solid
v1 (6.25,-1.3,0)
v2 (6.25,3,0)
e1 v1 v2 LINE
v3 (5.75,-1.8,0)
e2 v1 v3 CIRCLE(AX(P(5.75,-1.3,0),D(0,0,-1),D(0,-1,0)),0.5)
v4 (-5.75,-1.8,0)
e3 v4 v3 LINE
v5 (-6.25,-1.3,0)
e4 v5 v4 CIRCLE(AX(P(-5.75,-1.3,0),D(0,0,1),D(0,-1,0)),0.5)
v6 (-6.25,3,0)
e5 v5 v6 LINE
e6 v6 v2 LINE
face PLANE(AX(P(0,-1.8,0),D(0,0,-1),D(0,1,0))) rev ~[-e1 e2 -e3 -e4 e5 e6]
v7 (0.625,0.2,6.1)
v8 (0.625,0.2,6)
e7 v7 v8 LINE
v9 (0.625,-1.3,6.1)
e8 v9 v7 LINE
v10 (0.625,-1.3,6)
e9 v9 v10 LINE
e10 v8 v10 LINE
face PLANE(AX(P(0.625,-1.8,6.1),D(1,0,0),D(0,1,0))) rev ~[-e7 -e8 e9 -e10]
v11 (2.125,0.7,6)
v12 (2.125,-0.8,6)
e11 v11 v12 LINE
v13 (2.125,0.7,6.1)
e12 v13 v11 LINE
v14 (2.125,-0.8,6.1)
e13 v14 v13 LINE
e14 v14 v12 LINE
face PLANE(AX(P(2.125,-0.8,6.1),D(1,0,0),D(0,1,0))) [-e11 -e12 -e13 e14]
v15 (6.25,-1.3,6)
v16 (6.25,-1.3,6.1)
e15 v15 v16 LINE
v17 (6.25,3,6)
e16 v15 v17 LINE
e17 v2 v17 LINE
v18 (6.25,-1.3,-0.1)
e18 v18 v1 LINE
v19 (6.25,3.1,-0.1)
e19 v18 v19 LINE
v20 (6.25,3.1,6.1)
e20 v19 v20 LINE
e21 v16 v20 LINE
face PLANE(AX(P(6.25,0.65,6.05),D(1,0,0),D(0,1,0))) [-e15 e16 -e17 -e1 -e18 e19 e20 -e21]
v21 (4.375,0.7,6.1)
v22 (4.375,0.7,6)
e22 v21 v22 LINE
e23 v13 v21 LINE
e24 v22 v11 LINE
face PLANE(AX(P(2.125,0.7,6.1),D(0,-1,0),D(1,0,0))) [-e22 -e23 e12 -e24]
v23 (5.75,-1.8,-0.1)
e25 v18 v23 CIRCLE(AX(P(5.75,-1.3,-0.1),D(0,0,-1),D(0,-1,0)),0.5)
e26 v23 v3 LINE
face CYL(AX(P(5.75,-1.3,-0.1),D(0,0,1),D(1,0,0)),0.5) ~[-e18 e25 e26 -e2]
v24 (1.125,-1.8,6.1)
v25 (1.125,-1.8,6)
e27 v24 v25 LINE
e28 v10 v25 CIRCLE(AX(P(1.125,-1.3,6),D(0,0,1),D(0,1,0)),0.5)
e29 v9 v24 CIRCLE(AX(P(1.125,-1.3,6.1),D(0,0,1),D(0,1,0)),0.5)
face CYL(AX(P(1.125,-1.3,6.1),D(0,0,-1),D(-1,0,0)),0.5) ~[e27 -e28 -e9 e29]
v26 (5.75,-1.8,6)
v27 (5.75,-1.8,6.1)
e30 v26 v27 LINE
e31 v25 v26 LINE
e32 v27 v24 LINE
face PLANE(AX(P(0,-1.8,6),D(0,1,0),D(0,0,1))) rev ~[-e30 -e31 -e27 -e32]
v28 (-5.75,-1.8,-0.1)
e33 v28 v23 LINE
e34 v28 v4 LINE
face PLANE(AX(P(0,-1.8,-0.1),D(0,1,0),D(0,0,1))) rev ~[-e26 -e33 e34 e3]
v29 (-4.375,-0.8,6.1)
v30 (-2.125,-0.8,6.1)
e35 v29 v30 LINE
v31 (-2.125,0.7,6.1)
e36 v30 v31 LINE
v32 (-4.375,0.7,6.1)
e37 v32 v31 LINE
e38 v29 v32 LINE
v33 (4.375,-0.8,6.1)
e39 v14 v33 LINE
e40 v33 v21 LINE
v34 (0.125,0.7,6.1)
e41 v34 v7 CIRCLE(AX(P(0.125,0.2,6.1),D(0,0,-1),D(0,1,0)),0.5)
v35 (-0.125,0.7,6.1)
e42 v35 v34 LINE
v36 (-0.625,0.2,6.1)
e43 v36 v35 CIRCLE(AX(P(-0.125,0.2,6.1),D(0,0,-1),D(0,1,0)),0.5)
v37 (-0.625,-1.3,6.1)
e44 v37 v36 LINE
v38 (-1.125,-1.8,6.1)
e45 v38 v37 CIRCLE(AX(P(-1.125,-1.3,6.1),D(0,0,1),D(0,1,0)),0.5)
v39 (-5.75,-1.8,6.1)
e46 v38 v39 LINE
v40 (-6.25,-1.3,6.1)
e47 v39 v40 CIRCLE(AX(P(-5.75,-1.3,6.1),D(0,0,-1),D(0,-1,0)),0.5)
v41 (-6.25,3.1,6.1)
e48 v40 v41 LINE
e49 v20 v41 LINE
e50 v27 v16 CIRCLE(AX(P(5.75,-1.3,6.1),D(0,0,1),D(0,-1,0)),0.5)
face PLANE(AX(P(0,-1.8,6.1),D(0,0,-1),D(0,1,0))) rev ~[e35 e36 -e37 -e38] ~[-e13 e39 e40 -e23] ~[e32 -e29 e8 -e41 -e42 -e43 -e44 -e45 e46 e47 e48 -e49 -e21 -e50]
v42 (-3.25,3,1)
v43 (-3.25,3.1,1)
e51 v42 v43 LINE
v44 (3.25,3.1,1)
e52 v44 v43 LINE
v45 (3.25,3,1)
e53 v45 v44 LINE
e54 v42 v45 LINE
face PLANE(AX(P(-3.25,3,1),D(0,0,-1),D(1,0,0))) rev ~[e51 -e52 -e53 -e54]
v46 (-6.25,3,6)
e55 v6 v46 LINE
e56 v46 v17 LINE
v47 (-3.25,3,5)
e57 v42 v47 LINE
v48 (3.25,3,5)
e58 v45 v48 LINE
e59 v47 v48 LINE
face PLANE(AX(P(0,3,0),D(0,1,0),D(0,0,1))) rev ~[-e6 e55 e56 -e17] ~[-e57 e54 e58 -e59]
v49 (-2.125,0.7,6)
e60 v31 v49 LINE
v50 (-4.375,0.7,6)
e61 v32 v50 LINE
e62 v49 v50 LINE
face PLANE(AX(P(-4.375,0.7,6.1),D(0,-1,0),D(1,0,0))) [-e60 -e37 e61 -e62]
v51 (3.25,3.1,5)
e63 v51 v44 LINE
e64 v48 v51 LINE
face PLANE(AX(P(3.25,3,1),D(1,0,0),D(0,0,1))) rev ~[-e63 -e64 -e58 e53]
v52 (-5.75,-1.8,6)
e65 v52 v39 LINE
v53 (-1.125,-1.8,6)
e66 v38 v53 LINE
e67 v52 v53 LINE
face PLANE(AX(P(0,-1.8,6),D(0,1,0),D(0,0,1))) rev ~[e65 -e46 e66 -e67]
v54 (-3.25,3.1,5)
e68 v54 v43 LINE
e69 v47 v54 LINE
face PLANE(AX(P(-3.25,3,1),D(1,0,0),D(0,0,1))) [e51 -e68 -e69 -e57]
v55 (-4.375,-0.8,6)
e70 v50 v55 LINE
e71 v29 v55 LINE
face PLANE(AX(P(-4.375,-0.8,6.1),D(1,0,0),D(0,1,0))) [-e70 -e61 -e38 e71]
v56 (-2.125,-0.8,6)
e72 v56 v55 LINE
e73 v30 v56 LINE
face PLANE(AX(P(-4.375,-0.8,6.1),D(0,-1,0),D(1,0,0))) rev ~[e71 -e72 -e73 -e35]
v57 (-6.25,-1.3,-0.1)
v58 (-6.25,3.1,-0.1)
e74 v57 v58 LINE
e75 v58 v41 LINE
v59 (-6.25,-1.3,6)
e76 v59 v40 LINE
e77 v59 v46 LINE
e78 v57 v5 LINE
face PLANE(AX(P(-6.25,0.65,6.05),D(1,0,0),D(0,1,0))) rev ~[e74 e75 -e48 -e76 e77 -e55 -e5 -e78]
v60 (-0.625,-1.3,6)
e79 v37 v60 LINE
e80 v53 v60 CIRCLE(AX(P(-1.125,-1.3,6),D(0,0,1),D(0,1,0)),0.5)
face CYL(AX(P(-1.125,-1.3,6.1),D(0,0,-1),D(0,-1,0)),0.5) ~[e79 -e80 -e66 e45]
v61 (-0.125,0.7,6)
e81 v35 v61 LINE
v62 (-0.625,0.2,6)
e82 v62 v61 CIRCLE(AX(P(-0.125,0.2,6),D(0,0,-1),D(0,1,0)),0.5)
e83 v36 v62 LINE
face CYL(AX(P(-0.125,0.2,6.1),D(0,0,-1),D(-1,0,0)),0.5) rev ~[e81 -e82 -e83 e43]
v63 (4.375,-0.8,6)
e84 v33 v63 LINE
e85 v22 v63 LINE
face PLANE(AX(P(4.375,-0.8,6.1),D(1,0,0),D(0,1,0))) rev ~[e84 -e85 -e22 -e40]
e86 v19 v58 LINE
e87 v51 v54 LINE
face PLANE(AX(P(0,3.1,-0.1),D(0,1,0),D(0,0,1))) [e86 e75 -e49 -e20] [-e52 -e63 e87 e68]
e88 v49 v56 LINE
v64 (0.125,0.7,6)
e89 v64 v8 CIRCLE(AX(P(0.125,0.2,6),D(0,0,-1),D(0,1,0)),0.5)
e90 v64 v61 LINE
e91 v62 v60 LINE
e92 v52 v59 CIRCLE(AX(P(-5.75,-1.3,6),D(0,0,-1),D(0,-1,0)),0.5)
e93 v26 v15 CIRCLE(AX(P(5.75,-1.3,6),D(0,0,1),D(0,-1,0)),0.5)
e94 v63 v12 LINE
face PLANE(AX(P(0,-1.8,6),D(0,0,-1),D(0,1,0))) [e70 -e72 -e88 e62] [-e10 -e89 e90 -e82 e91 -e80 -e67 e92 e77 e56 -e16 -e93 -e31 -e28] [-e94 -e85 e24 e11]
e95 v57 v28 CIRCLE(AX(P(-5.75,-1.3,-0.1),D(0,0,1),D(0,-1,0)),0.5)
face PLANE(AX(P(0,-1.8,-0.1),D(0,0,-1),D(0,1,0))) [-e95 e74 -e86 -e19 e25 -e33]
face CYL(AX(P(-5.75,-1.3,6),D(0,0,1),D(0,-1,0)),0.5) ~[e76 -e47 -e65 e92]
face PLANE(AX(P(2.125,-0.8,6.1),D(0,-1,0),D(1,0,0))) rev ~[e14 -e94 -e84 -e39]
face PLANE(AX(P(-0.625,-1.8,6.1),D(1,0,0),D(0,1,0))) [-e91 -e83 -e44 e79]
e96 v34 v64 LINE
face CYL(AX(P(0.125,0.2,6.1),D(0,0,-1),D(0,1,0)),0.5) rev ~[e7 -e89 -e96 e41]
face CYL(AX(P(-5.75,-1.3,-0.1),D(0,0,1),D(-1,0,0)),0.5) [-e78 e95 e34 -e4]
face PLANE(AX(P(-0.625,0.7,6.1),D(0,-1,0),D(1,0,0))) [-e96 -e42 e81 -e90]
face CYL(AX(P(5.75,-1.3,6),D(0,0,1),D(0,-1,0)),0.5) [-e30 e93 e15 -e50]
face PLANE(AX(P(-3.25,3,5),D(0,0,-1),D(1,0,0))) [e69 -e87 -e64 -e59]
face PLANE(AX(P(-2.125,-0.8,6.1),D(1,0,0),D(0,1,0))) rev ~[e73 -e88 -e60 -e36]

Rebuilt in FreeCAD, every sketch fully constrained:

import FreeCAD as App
import Part
import Sketcher
Q = App.Units.Quantity


def edges_at(feature, points):
    """Names of the edges that pass closest to the given points."""
    edges = feature.Shape.Edges
    near = lambda p: min(range(len(edges)), key=lambda i: edges[i].distToShape(Part.Vertex(*p))[0])
    return sorted({f"Edge{near(p) + 1}" for p in points})


def add_polygon(sketch, points):
    """Adds a closed chain of lines whose ends are joined by coincident constraints."""
    first, n = sketch.GeometryCount, len(points)
    for a, b in zip(points, points[1:] + points[:1]):
        sketch.addGeometry(Part.LineSegment(App.Vector(*a, 0), App.Vector(*b, 0)), False)
    for i in range(n):
        sketch.addConstraint(Sketcher.Constraint("Coincident", first + i, 2, first + (i + 1) % n, 1))

doc = App.newDocument("Part")
body = doc.addObject("PartDesign::Body", "Body")

sketch1 = body.newObject("Sketcher::SketchObject", "Sketch")
sketch1.AttachmentSupport = (doc.getObject("YZ_Plane"), [""])
sketch1.MapMode = "FlatFace"
add_polygon(sketch1, [(-1.8, 6.1), (-1.8, 6), (3, 6), (3, 0), (-1.8, 0), (-1.8, -0.1), (3.1, -0.1), (3.1, 6.1)])
sketch1.addConstraint([
    Sketcher.Constraint("Vertical", 0),
    Sketcher.Constraint("Horizontal", 1),
    Sketcher.Constraint("Vertical", 2),
    Sketcher.Constraint("Horizontal", 3),
    Sketcher.Constraint("Vertical", 4),
    Sketcher.Constraint("Horizontal", 5),
    Sketcher.Constraint("Vertical", 6),
    Sketcher.Constraint("Horizontal", 7),
    Sketcher.Constraint("PointOnObject", 2, 2, -1),
    Sketcher.Constraint("Vertical", 0, 2, 3, 2),
    Sketcher.Constraint("Equal", 0, 4),
    Sketcher.Constraint("DistanceY", 2, 2, 2, 1, Q("6 mm")),
    Sketcher.Constraint("DistanceX", 1, 1, 1, 2, Q("4.8 mm")),
    Sketcher.Constraint("DistanceX", 5, 1, 5, 2, Q("4.9 mm")),
    Sketcher.Constraint("DistanceY", 0, 2, 0, 1, Q("0.1 mm")),
    Sketcher.Constraint("DistanceX", -1, 1, 1, 2, Q("3 mm")),
])
pad1 = body.newObject("PartDesign::Pad", "Pad")
pad1.Profile = sketch1
pad1.Length = 12.5
pad1.Midplane = True

sketch2 = body.newObject("Sketcher::SketchObject", "Sketch001")
sketch2.AttachmentSupport = (doc.getObject("XY_Plane"), [""])
sketch2.MapMode = "FlatFace"
sketch2.AttachmentOffset = App.Placement(App.Vector(0, 0, 6.1), App.Rotation())
add_polygon(sketch2, [(-0.625, 0.7), (-0.625, -1.8), (0.625, -1.8), (0.625, 0.7)])
add_polygon(sketch2, [(2.125, 0.7), (2.125, -0.8), (4.375, -0.8), (4.375, 0.7)])
add_polygon(sketch2, [(-4.375, 0.7), (-4.375, -0.8), (-2.125, -0.8), (-2.125, 0.7)])
sketch2.addConstraint([
    Sketcher.Constraint("Vertical", 0),
    Sketcher.Constraint("Horizontal", 1),
    Sketcher.Constraint("Vertical", 2),
    Sketcher.Constraint("Horizontal", 3),
    Sketcher.Constraint("Vertical", 4),
    Sketcher.Constraint("Horizontal", 5),
    Sketcher.Constraint("Vertical", 6),
    Sketcher.Constraint("Horizontal", 7),
    Sketcher.Constraint("Vertical", 8),
    Sketcher.Constraint("Horizontal", 9),
    Sketcher.Constraint("Vertical", 10),
    Sketcher.Constraint("Horizontal", 11),
    Sketcher.Constraint("Symmetric", 5, 2, 8, 2, -2),
    Sketcher.Constraint("Symmetric", 7, 2, 10, 2, -2),
    Sketcher.Constraint("Horizontal", 3, 2, 6, 2),
    Sketcher.Constraint("DistanceY", 0, 2, 0, 1, Q("2.5 mm")),
    Sketcher.Constraint("DistanceY", 4, 2, 4, 1, Q("1.5 mm")),
    Sketcher.Constraint("DistanceX", 0, 2, 5, 2, Q("5 mm")),
    Sketcher.Constraint("DistanceX", 8, 2, 1, 2, Q("5 mm")),
    Sketcher.Constraint("DistanceX", 1, 1, 1, 2, Q("1.25 mm")),
    Sketcher.Constraint("DistanceX", 5, 1, 5, 2, Q("2.25 mm")),
    Sketcher.Constraint("DistanceY", 0, 2, -1, 1, Q("1.8 mm")),
])
pocket1 = body.newObject("PartDesign::Pocket", "Pocket")
pocket1.Profile = sketch2
pocket1.Length = 5
doc.recompute()

fillet = body.newObject("PartDesign::Fillet", "Fillet")
fillet.Base = (pocket1, edges_at(pocket1, [
    (0.625, -1.8, 6.05),
    (0.625, 0.7, 6.05),
    (-0.625, -1.8, 6.05),
    (-0.625, 0.7, 6.05),
    (6.25, -1.8, 6.05),
    (-6.25, -1.8, 6.05),
    (-6.25, -1.8, -0.05),
    (6.25, -1.8, -0.05),
]))
fillet.Radius = 0.5

sketch3 = body.newObject("Sketcher::SketchObject", "Sketch002")
sketch3.AttachmentSupport = (doc.getObject("XZ_Plane"), [""])
sketch3.MapMode = "FlatFace"
sketch3.AttachmentOffset = App.Placement(App.Vector(0, 0, -3), App.Rotation())
add_polygon(sketch3, [(-3.25, 5), (-3.25, 1), (3.25, 1), (3.25, 5)])
sketch3.addConstraint([
    Sketcher.Constraint("Vertical", 0),
    Sketcher.Constraint("Horizontal", 1),
    Sketcher.Constraint("Vertical", 2),
    Sketcher.Constraint("Horizontal", 3),
    Sketcher.Constraint("DistanceY", 0, 2, 0, 1, Q("4 mm")),
    Sketcher.Constraint("DistanceX", 1, 1, 1, 2, Q("6.5 mm")),
    Sketcher.Constraint("DistanceY", -1, 1, 0, 2, Q("1 mm")),
    Sketcher.Constraint("DistanceX", 0, 2, -1, 1, Q("3.25 mm")),
])
pocket2 = body.newObject("PartDesign::Pocket", "Pocket001")
pocket2.Profile = sketch3
pocket2.Length = 5

doc.recompute()
